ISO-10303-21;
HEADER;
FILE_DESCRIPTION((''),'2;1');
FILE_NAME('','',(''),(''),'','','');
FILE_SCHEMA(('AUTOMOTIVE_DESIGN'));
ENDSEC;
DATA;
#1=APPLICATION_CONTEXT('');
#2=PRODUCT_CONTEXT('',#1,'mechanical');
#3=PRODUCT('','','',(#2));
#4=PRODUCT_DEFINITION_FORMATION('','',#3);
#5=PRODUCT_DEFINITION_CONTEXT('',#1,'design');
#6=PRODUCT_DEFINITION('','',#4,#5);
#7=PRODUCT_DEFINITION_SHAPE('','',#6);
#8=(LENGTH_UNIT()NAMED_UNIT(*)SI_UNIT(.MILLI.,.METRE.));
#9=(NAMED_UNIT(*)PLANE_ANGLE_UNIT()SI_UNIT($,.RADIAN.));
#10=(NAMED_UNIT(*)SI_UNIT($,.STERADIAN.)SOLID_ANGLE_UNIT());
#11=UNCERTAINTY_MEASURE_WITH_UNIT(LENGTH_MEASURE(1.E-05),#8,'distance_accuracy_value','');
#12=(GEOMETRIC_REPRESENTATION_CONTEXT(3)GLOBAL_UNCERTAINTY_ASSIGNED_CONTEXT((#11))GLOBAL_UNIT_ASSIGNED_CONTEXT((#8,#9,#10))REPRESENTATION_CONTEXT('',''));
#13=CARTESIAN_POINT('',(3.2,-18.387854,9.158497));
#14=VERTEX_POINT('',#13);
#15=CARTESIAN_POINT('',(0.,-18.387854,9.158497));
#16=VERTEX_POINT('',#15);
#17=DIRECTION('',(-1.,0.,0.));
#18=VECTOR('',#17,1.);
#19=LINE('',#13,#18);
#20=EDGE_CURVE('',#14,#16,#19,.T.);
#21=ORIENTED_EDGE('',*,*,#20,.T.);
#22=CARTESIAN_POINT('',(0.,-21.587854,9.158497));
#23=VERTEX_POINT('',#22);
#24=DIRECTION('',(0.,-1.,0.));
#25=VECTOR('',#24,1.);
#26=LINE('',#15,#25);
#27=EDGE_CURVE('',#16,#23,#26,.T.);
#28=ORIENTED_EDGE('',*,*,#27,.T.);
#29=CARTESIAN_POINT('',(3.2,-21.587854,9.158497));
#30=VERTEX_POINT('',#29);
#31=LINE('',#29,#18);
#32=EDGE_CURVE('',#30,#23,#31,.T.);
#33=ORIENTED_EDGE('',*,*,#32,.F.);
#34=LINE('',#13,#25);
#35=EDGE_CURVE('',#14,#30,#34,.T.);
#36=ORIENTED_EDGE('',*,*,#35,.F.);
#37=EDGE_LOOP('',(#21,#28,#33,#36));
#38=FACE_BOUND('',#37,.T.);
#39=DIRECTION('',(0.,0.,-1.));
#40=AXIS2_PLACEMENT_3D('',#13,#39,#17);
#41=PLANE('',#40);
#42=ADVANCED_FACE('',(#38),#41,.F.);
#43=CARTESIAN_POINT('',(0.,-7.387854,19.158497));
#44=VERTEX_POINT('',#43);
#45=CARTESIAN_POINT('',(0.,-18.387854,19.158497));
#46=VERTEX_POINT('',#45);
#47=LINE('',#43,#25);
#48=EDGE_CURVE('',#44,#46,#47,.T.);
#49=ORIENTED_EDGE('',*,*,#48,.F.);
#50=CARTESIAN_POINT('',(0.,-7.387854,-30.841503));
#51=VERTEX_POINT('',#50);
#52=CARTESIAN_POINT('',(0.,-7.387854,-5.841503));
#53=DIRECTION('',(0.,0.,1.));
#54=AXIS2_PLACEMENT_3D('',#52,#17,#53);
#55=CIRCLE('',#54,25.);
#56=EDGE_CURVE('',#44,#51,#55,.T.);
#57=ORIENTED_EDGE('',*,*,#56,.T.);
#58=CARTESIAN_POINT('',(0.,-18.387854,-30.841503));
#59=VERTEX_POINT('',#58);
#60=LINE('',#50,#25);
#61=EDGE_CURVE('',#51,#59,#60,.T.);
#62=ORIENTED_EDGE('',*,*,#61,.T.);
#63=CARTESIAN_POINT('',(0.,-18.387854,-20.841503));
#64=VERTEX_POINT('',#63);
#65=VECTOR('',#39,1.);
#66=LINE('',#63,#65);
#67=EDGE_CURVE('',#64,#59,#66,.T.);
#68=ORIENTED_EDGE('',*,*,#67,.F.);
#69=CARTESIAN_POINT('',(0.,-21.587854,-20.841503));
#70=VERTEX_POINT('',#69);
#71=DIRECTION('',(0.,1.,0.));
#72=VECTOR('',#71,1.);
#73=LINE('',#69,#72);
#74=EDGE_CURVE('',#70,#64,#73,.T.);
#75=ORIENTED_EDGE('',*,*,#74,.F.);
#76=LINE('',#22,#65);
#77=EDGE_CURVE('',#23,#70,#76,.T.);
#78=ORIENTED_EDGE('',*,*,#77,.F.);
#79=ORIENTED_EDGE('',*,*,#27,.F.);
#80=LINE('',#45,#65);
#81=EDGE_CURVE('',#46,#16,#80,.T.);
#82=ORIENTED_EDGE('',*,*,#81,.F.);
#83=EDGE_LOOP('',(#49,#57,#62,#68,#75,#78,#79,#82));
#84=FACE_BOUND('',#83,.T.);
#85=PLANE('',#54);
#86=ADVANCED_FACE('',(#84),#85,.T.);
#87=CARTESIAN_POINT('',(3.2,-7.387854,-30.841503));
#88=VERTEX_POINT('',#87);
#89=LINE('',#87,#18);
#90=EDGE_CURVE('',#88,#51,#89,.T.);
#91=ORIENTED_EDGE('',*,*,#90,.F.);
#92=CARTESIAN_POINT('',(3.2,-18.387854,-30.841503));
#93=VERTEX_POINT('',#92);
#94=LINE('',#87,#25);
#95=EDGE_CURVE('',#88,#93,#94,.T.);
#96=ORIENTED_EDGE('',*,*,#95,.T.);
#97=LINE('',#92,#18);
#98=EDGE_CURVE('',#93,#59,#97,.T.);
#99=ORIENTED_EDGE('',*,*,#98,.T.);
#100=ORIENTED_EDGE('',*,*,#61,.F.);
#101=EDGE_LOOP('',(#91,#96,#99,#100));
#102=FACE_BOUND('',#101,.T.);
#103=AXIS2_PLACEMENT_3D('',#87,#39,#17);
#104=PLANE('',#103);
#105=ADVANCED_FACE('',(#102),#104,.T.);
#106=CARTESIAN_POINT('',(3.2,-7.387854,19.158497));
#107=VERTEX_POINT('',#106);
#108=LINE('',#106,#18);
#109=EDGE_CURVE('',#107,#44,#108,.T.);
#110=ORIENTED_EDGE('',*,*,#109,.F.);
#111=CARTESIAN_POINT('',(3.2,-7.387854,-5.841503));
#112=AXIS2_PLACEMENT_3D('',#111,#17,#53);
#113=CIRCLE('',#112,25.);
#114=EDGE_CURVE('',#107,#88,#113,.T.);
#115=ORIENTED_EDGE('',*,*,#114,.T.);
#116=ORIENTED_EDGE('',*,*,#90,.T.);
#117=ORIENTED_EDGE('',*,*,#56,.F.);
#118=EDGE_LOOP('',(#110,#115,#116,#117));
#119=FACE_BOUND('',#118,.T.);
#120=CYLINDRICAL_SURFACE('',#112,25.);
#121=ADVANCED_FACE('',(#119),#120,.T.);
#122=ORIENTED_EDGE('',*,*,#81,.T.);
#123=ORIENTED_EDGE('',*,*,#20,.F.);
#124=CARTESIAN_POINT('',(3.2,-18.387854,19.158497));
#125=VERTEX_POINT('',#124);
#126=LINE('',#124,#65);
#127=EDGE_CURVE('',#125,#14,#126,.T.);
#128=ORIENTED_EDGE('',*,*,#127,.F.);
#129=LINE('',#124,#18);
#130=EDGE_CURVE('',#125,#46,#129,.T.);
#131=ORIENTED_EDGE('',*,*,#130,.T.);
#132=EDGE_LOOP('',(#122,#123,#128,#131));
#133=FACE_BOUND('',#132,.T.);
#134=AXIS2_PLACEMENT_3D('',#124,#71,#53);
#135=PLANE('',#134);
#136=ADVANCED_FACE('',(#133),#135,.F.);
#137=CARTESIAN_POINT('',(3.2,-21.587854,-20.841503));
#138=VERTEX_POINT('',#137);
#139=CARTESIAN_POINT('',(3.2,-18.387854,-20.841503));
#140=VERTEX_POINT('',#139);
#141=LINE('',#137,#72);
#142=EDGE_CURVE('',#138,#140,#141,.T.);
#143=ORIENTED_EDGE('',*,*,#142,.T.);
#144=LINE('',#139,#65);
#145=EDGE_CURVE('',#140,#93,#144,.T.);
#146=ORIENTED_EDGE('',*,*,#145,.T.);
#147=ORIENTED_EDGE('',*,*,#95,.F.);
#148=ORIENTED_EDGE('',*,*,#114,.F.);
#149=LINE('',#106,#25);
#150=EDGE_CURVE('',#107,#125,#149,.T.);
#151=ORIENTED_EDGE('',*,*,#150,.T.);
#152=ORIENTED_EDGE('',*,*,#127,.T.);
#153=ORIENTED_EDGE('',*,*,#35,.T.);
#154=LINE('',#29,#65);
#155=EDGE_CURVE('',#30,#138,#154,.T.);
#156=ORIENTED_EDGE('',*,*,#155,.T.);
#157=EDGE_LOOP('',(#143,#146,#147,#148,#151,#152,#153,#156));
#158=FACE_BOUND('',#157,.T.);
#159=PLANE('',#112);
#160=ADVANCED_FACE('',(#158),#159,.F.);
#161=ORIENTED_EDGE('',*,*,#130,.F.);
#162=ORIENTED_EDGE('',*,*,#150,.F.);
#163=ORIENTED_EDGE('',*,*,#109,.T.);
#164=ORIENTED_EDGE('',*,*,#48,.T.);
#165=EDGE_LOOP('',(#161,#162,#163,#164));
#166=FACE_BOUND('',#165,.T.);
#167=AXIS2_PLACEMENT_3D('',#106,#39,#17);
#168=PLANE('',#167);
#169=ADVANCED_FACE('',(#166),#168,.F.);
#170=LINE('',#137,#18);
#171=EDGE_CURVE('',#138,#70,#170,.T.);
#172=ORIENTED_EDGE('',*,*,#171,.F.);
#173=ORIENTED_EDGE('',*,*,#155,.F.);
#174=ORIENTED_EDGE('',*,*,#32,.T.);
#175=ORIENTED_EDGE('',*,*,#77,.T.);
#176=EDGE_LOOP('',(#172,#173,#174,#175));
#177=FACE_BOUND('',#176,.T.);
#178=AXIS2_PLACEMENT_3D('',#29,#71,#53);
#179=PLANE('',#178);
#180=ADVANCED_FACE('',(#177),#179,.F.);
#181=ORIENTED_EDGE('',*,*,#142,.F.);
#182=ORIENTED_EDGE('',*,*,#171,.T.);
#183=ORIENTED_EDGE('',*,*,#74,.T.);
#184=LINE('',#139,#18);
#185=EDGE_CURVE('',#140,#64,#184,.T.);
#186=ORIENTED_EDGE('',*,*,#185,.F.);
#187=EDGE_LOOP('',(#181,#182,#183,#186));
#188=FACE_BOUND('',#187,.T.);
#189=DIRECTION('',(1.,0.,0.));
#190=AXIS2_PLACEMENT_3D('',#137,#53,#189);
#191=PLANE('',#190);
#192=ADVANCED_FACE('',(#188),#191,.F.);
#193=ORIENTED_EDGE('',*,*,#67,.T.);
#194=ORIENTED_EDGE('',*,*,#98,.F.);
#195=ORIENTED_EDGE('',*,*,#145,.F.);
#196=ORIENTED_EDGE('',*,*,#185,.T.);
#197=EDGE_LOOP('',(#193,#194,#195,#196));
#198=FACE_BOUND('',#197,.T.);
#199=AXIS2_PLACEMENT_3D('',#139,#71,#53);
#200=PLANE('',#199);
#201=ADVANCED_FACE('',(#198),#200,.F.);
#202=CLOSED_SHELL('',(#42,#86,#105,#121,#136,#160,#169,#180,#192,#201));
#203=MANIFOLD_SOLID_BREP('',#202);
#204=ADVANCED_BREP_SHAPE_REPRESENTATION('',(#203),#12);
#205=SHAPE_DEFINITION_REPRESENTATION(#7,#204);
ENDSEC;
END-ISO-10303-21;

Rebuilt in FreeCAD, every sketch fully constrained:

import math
import FreeCAD as App
import Part
import Sketcher
from FreeCAD import Vector
Q = App.Units.Quantity

doc = App.newDocument("Part")
params = doc.addObject("Spreadsheet::Sheet", "Params")
for row, (alias, value) in enumerate([
    ("sketch1_radius", "25 mm"),
    ("sketch1_width", "11 mm"),
    ("sketch1_height", "10 mm"),
    ("sketch1_width2", "3.2 mm"),
    ("pad1_length", "3.2 mm"),
], start=1):
    params.set(f"A{row}", alias)
    params.set(f"B{row}", "=" + value)
    params.setAlias(f"B{row}", alias)

body = doc.addObject("PartDesign::Body", "Body")

# Sketch on YZ plane
sketch1 = body.newObject("Sketcher::SketchObject", "Sketch")
sketch1.AttachmentSupport = (doc.getObject("YZ_Plane"), [""])
sketch1.MapMode = "FlatFace"
sketch1.addGeometry([
    Part.LineSegment(Vector(-18.4, -20.8, 0), Vector(-18.4, -30.8, 0)),  # 0
    Part.LineSegment(Vector(-18.4, -30.8, 0), Vector(-7.4, -30.8, 0)),  # 1
    Part.ArcOfCircle(Part.Circle(Vector(-7.4, -5.8, 0), Vector(0, 0, 1), 25), math.radians(-90), math.radians(90)),  # 2
    Part.LineSegment(Vector(-7.4, 19.2, 0), Vector(-18.4, 19.2, 0)),  # 3
    Part.LineSegment(Vector(-18.4, 19.2, 0), Vector(-18.4, 9.2, 0)),  # 4
    Part.LineSegment(Vector(-18.4, 9.2, 0), Vector(-21.6, 9.2, 0)),  # 5
    Part.LineSegment(Vector(-21.6, 9.2, 0), Vector(-21.6, -20.8, 0)),  # 6
    Part.LineSegment(Vector(-21.6, -20.8, 0), Vector(-18.4, -20.8, 0)),  # 7
], False)
sketch1.addConstraint([
    Sketcher.Constraint("Coincident", 0, 2, 1, 1),
    Sketcher.Constraint("Tangent", 1, 2, 2, 1),
    Sketcher.Constraint("Tangent", 2, 2, 3, 1),
    Sketcher.Constraint("Coincident", 3, 2, 4, 1),
    Sketcher.Constraint("Coincident", 4, 2, 5, 1),
    Sketcher.Constraint("Coincident", 5, 2, 6, 1),
    Sketcher.Constraint("Coincident", 6, 2, 7, 1),
    Sketcher.Constraint("Coincident", 7, 2, 0, 1),
    Sketcher.Constraint("Vertical", 0),
    Sketcher.Constraint("Horizontal", 1),
    Sketcher.Constraint("Horizontal", 3),
    Sketcher.Constraint("Vertical", 4),
    Sketcher.Constraint("Horizontal", 5),
    Sketcher.Constraint("Vertical", 6),
    Sketcher.Constraint("Horizontal", 7),
    Sketcher.Constraint("Vertical", 0, 2, 3, 2),
    Sketcher.Constraint("Equal", 0, 4),
    Sketcher.Constraint("Radius", 2, Q("25 mm")),
    Sketcher.Constraint("DistanceX", 1, 1, 1, 2, Q("11 mm")),
    Sketcher.Constraint("DistanceY", 0, 2, 0, 1, Q("10 mm")),
    Sketcher.Constraint("DistanceX", 5, 2, 5, 1, Q("3.2 mm")),
    Sketcher.Constraint("DistanceX", 2, 3, -1, 1, Q("7.387854 mm")),
    Sketcher.Constraint("DistanceY", 2, 3, -1, 1, Q("5.841503 mm")),
])
sketch1.setExpression("Constraints[17]", "Params.sketch1_radius")
sketch1.setExpression("Constraints[18]", "Params.sketch1_width")
sketch1.setExpression("Constraints[19]", "Params.sketch1_height")
sketch1.setExpression("Constraints[20]", "Params.sketch1_width2")
pad1 = body.newObject("PartDesign::Pad", "Pad")
pad1.Profile = sketch1
pad1.setExpression("Length", "Params.pad1_length")

doc.recompute()
